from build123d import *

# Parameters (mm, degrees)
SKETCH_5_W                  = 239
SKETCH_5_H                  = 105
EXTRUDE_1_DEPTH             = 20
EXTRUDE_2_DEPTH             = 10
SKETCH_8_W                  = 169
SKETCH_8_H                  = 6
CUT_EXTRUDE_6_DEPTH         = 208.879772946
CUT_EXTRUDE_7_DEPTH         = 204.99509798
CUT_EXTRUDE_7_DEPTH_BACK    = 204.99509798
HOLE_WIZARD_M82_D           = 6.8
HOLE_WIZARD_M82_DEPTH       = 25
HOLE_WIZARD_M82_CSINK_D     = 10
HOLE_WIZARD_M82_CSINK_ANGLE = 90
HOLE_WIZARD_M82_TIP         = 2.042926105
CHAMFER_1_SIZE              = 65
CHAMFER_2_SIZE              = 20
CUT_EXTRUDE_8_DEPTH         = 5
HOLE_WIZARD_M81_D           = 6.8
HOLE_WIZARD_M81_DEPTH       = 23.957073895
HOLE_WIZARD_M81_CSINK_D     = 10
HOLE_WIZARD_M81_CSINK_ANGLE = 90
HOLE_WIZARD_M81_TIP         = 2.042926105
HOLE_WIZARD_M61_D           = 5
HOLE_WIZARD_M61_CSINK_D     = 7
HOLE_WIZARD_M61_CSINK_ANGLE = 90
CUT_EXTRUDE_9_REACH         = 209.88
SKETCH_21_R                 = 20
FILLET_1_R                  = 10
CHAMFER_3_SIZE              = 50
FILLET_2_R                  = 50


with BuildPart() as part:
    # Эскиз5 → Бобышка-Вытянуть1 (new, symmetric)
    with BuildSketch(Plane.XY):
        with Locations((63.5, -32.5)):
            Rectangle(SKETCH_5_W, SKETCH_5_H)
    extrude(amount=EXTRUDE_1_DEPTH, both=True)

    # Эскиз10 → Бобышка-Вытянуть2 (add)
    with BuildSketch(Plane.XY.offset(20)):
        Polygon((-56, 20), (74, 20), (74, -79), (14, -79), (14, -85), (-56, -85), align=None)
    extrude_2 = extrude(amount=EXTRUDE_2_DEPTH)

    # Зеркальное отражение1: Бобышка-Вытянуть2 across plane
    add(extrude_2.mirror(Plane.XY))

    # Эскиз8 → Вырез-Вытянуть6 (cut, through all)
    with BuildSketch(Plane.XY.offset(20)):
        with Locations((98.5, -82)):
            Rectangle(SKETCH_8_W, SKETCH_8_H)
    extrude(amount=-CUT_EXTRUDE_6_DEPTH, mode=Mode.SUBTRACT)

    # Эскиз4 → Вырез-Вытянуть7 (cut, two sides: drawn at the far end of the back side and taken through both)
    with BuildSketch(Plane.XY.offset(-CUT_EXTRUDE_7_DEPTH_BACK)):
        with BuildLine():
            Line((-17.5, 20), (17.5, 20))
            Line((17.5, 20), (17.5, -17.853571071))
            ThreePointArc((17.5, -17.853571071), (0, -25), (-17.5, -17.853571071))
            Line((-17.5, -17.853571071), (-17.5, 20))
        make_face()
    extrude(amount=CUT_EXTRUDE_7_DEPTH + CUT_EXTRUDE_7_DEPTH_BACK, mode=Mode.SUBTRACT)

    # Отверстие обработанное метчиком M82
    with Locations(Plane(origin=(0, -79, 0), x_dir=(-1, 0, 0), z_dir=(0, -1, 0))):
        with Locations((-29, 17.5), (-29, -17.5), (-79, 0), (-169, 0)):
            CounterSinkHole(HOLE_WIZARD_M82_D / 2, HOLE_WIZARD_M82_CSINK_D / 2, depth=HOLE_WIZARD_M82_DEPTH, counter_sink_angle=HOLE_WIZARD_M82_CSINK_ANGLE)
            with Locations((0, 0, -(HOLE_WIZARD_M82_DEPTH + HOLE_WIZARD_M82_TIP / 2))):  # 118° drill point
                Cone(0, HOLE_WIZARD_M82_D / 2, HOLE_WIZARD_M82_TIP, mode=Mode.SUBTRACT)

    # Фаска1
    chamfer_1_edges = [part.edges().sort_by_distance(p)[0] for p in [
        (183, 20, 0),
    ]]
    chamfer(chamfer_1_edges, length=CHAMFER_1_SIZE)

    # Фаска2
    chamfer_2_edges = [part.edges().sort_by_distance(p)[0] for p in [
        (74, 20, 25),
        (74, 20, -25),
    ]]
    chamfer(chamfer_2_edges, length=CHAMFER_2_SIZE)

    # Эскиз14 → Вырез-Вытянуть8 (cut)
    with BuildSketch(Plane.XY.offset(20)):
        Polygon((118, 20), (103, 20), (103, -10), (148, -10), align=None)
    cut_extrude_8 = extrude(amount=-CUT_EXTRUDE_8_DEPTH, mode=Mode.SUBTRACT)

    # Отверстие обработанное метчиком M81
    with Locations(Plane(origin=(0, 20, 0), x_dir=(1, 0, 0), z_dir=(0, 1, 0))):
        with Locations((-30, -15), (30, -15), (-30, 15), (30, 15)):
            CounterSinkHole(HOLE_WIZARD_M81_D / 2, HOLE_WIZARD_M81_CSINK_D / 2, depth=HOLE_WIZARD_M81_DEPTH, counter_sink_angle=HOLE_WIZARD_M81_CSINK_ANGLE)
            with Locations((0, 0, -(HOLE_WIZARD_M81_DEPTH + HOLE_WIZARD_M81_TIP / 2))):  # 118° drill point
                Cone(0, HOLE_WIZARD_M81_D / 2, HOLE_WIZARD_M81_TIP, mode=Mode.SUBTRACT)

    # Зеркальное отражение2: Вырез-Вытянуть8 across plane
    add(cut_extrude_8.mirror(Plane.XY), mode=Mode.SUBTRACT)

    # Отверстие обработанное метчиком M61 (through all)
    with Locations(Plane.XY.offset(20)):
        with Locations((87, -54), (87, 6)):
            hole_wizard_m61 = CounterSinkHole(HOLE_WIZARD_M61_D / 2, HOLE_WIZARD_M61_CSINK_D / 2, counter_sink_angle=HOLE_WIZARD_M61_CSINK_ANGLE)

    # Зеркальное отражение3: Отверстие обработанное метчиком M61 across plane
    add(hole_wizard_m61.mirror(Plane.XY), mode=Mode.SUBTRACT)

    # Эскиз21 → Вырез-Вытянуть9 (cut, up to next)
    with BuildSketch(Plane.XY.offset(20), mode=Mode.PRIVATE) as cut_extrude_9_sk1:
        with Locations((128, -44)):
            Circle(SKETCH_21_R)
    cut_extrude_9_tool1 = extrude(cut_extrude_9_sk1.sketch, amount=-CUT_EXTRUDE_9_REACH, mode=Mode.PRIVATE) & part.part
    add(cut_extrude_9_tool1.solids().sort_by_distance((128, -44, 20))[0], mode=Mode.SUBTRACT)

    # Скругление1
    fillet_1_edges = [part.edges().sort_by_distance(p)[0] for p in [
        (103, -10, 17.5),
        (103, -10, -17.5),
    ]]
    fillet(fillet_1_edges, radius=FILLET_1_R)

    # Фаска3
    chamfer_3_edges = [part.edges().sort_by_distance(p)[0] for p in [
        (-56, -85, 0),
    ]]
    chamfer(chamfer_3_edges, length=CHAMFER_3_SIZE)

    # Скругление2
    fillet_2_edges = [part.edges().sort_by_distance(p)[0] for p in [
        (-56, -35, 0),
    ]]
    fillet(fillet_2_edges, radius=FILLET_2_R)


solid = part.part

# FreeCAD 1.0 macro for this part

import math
import FreeCAD as App
import Part
import Sketcher
Q = App.Units.Quantity


def edges_at(feature, points):
    """Names of the edges that pass closest to the given points."""
    edges = feature.Shape.Edges
    near = lambda p: min(range(len(edges)), key=lambda i: edges[i].distToShape(Part.Vertex(*p))[0])
    return sorted({f"Edge{near(p) + 1}" for p in points})


def add_polygon(sketch, points):
    """Adds a closed chain of lines whose ends are joined by coincident constraints."""
    first, n = sketch.GeometryCount, len(points)
    for a, b in zip(points, points[1:] + points[:1]):
        sketch.addGeometry(Part.LineSegment(App.Vector(*a, 0), App.Vector(*b, 0)), False)
    for i in range(n):
        sketch.addConstraint(Sketcher.Constraint("Coincident", first + i, 2, first + (i + 1) % n, 1))

doc = App.newDocument("Part")
params = doc.addObject("Spreadsheet::Sheet", "Params")
for row, (alias, value) in enumerate([
    ("sketch1_width", "239 mm"),
    ("sketch1_height", "105 mm"),
    ("pad1_length", "40 mm"),
    ("sketch2_width", "130 mm"),
    ("sketch2_width2", "70 mm"),
    ("sketch2_height", "105 mm"),
    ("sketch2_height2", "6 mm"),
    ("pad2_length", "10 mm"),
    ("sketch3_width", "169 mm"),
    ("sketch3_height", "6 mm"),
    ("sketch4_radius", "25 mm"),
    ("sketch4_width", "35 mm"),
    ("sketch5_diameter", "6.8 mm"),
    ("hole_diameter", "6.8 mm"),
    ("hole_depth", "25 mm"),
    ("hole_csink_diameter", "10 mm"),
    ("chamfer_size", "65 mm"),
    ("chamfer2_size", "20 mm"),
    ("sketch6_width", "15 mm"),
    ("sketch6_width2", "45 mm"),
    ("sketch6_height", "30 mm"),
    ("pocket3_length", "5 mm"),
    ("sketch7_diameter", "6.8 mm"),
    ("hole2_diameter", "6.8 mm"),
    ("hole2_depth", "23.957074 mm"),
    ("hole2_csink_diameter", "10 mm"),
    ("sketch8_diameter", "5 mm"),
    ("hole3_diameter", "5 mm"),
    ("hole3_csink_diameter", "7 mm"),
    ("sketch9_diameter", "40 mm"),
    ("fillet_radius", "10 mm"),
    ("chamfer3_size", "50 mm"),
    ("fillet2_radius", "50 mm"),
], start=1):
    params.set(f"A{row}", alias)
    params.set(f"B{row}", "=" + value)
    params.setAlias(f"B{row}", alias)

body = doc.addObject("PartDesign::Body", "Body")

sketch1 = body.newObject("Sketcher::SketchObject", "Sketch")
sketch1.AttachmentSupport = (doc.getObject("XY_Plane"), [""])
sketch1.MapMode = "FlatFace"
add_polygon(sketch1, [(-56, 20), (-56, -85), (183, -85), (183, 20)])
sketch1.addConstraint(Sketcher.Constraint("Vertical", 0))
sketch1.addConstraint(Sketcher.Constraint("Horizontal", 1))
sketch1.addConstraint(Sketcher.Constraint("Vertical", 2))
sketch1.addConstraint(Sketcher.Constraint("Horizontal", 3))
sketch1.addConstraint(Sketcher.Constraint("DistanceX", 1, 1, 1, 2, Q("239 mm")))
sketch1.addConstraint(Sketcher.Constraint("DistanceY", 0, 2, 0, 1, Q("105 mm")))
sketch1.addConstraint(Sketcher.Constraint("DistanceX", 0, 2, -1, 1, Q("56 mm")))
sketch1.addConstraint(Sketcher.Constraint("DistanceY", 0, 2, -1, 1, Q("85 mm")))
sketch1.setExpression("Constraints[8]", "Params.sketch1_width")
sketch1.setExpression("Constraints[9]", "Params.sketch1_height")
pad1 = body.newObject("PartDesign::Pad", "Pad")
pad1.Profile = sketch1
pad1.setExpression("Length", "Params.pad1_length")
pad1.Midplane = True

sketch2 = body.newObject("Sketcher::SketchObject", "Sketch001")
sketch2.AttachmentSupport = (doc.getObject("XY_Plane"), [""])
sketch2.MapMode = "FlatFace"
sketch2.AttachmentOffset = App.Placement(App.Vector(0, 0, 20), App.Rotation())
add_polygon(sketch2, [(74, 20), (-56, 20), (-56, -85), (14, -85), (14, -79), (74, -79)])
sketch2.addConstraint(Sketcher.Constraint("Horizontal", 0))
sketch2.addConstraint(Sketcher.Constraint("Vertical", 1))
sketch2.addConstraint(Sketcher.Constraint("Horizontal", 2))
sketch2.addConstraint(Sketcher.Constraint("Vertical", 3))
sketch2.addConstraint(Sketcher.Constraint("Horizontal", 4))
sketch2.addConstraint(Sketcher.Constraint("Vertical", 5))
sketch2.addConstraint(Sketcher.Constraint("DistanceX", 0, 2, 0, 1, Q("130 mm")))
sketch2.addConstraint(Sketcher.Constraint("DistanceX", 2, 1, 2, 2, Q("70 mm")))
sketch2.addConstraint(Sketcher.Constraint("DistanceY", 1, 2, 1, 1, Q("105 mm")))
sketch2.addConstraint(Sketcher.Constraint("DistanceY", 3, 1, 3, 2, Q("6 mm")))
sketch2.addConstraint(Sketcher.Constraint("DistanceX", 0, 2, -1, 1, Q("56 mm")))
sketch2.addConstraint(Sketcher.Constraint("DistanceY", -1, 1, 0, 2, Q("20 mm")))
sketch2.setExpression("Constraints[12]", "Params.sketch2_width")
sketch2.setExpression("Constraints[13]", "Params.sketch2_width2")
sketch2.setExpression("Constraints[14]", "Params.sketch2_height")
sketch2.setExpression("Constraints[15]", "Params.sketch2_height2")
pad2 = body.newObject("PartDesign::Pad", "Pad001")
pad2.Profile = sketch2
pad2.setExpression("Length", "Params.pad2_length")
doc.recompute()

mirrored = body.newObject("PartDesign::Mirrored", "Mirrored")
mirrored.Originals = [pad2]
mirrored.MirrorPlane = (doc.getObject("XY_Plane"), [""])
body.Tip = mirrored

sketch3 = body.newObject("Sketcher::SketchObject", "Sketch002")
sketch3.AttachmentSupport = (doc.getObject("XY_Plane"), [""])
sketch3.MapMode = "FlatFace"
sketch3.AttachmentOffset = App.Placement(App.Vector(0, 0, 20), App.Rotation())
add_polygon(sketch3, [(14, -79), (14, -85), (183, -85), (183, -79)])
sketch3.addConstraint(Sketcher.Constraint("Vertical", 0))
sketch3.addConstraint(Sketcher.Constraint("Horizontal", 1))
sketch3.addConstraint(Sketcher.Constraint("Vertical", 2))
sketch3.addConstraint(Sketcher.Constraint("Horizontal", 3))
sketch3.addConstraint(Sketcher.Constraint("DistanceX", 1, 1, 1, 2, Q("169 mm")))
sketch3.addConstraint(Sketcher.Constraint("DistanceY", 0, 2, 0, 1, Q("6 mm")))
sketch3.addConstraint(Sketcher.Constraint("DistanceX", -1, 1, 0, 2, Q("14 mm")))
sketch3.addConstraint(Sketcher.Constraint("DistanceY", 0, 2, -1, 1, Q("85 mm")))
sketch3.setExpression("Constraints[8]", "Params.sketch3_width")
sketch3.setExpression("Constraints[9]", "Params.sketch3_height")
pocket1 = body.newObject("PartDesign::Pocket", "Pocket")
pocket1.Profile = sketch3
pocket1.Type = "ThroughAll"

sketch4 = body.newObject("Sketcher::SketchObject", "Sketch003")
sketch4.AttachmentSupport = (doc.getObject("XY_Plane"), [""])
sketch4.MapMode = "FlatFace"
sketch4.addGeometry(Part.LineSegment(App.Vector(18, 20, 0), App.Vector(-18, 20, 0)), False)
sketch4.addGeometry(Part.LineSegment(App.Vector(-18, 20, 0), App.Vector(-18, -18, 0)), False)
sketch4.addGeometry(Part.ArcOfCircle(Part.Circle(App.Vector(0, 0, 0), App.Vector(0, 0, 1), 25), math.radians(-134), math.radians(-46)), False)
sketch4.addGeometry(Part.LineSegment(App.Vector(18, -18, 0), App.Vector(18, 20, 0)), False)
sketch4.addConstraint(Sketcher.Constraint("Coincident", 0, 2, 1, 1))
sketch4.addConstraint(Sketcher.Constraint("Coincident", 1, 2, 2, 1))
sketch4.addConstraint(Sketcher.Constraint("Coincident", 2, 2, 3, 1))
sketch4.addConstraint(Sketcher.Constraint("Coincident", 3, 2, 0, 1))
sketch4.addConstraint(Sketcher.Constraint("Horizontal", 0))
sketch4.addConstraint(Sketcher.Constraint("Vertical", 1))
sketch4.addConstraint(Sketcher.Constraint("Vertical", 3))
sketch4.addConstraint(Sketcher.Constraint("Coincident", 2, 3, -1, 1))
sketch4.addConstraint(Sketcher.Constraint("Horizontal", 1, 2, 2, 2))
sketch4.addConstraint(Sketcher.Constraint("Radius", 2, Q("25 mm")))
sketch4.addConstraint(Sketcher.Constraint("DistanceX", 0, 2, 0, 1, Q("35 mm")))
sketch4.addConstraint(Sketcher.Constraint("DistanceY", -1, 1, 0, 2, Q("20 mm")))
sketch4.setExpression("Constraints[9]", "Params.sketch4_radius")
sketch4.setExpression("Constraints[10]", "Params.sketch4_width")
pocket2 = body.newObject("PartDesign::Pocket", "Pocket001")
pocket2.Profile = sketch4
pocket2.Type = "ThroughAll"
pocket2.Midplane = True

sketch5 = body.newObject("Sketcher::SketchObject", "Sketch004")
sketch5.AttachmentSupport = (doc.getObject("XZ_Plane"), [""])
sketch5.MapMode = "FlatFace"
sketch5.AttachmentOffset = App.Placement(App.Vector(0, 0, 79), App.Rotation())
sketch5.addGeometry(Part.Circle(App.Vector(29, -17.5, 0), App.Vector(0, 0, 1), 3.4), False)
sketch5.addGeometry(Part.Circle(App.Vector(29, 17.5, 0), App.Vector(0, 0, 1), 3.4), False)
sketch5.addGeometry(Part.Circle(App.Vector(79, 0, 0), App.Vector(0, 0, 1), 3.4), False)
sketch5.addGeometry(Part.Circle(App.Vector(169, 0, 0), App.Vector(0, 0, 1), 3.4), False)
sketch5.addConstraint(Sketcher.Constraint("Equal", 0, 1))
sketch5.addConstraint(Sketcher.Constraint("Equal", 1, 2))
sketch5.addConstraint(Sketcher.Constraint("Equal", 2, 3))
sketch5.addConstraint(Sketcher.Constraint("Symmetric", 0, 3, 1, 3, -1))
sketch5.addConstraint(Sketcher.Constraint("PointOnObject", 2, 3, -1))
sketch5.addConstraint(Sketcher.Constraint("PointOnObject", 3, 3, -1))
sketch5.addConstraint(Sketcher.Constraint("Diameter", 0, Q("6.8 mm")))
sketch5.addConstraint(Sketcher.Constraint("DistanceX", -1, 1, 0, 3, Q("29 mm")))
sketch5.addConstraint(Sketcher.Constraint("DistanceX", -1, 1, 2, 3, Q("79 mm")))
sketch5.addConstraint(Sketcher.Constraint("DistanceX", -1, 1, 3, 3, Q("169 mm")))
sketch5.addConstraint(Sketcher.Constraint("DistanceY", 0, 3, 1, 3, Q("35 mm")))
sketch5.setExpression("Constraints[6]", "Params.sketch5_diameter")
doc.recompute()
hole = body.newObject("PartDesign::Hole", "Hole")
hole.Profile = sketch5
hole.ThreadType = "None"
hole.setExpression("Diameter", "Params.hole_diameter")
hole.DepthType = "Dimension"
hole.setExpression("Depth", "Params.hole_depth")
hole.DrillPoint = "Angled"
hole.DrillPointAngle = 118
hole.HoleCutType = "Countersink"
hole.setExpression("HoleCutDiameter", "Params.hole_csink_diameter")
hole.HoleCutCountersinkAngle = 90
doc.recompute()

chamfer = body.newObject("PartDesign::Chamfer", "Chamfer")
chamfer.Base = (hole, edges_at(hole, [(183, 20, 0)]))
chamfer.setExpression("Size", "Params.chamfer_size")
doc.recompute()

chamfer2 = body.newObject("PartDesign::Chamfer", "Chamfer001")
chamfer2.Base = (chamfer, edges_at(chamfer, [(74, 20, 25), (74, 20, -25)]))
chamfer2.setExpression("Size", "Params.chamfer2_size")

sketch6 = body.newObject("Sketcher::SketchObject", "Sketch005")
sketch6.AttachmentSupport = (doc.getObject("XY_Plane"), [""])
sketch6.MapMode = "FlatFace"
sketch6.AttachmentOffset = App.Placement(App.Vector(0, 0, 20), App.Rotation())
add_polygon(sketch6, [(118, 20), (103, 20), (103, -10), (148, -10)])
sketch6.addConstraint(Sketcher.Constraint("Horizontal", 0))
sketch6.addConstraint(Sketcher.Constraint("Vertical", 1))
sketch6.addConstraint(Sketcher.Constraint("Horizontal", 2))
sketch6.addConstraint(Sketcher.Constraint("DistanceX", 0, 2, 0, 1, Q("15 mm")))
sketch6.addConstraint(Sketcher.Constraint("DistanceX", 2, 1, 2, 2, Q("45 mm")))
sketch6.addConstraint(Sketcher.Constraint("DistanceY", 1, 2, 1, 1, Q("30 mm")))
sketch6.addConstraint(Sketcher.Constraint("DistanceX", -1, 1, 0, 2, Q("103 mm")))
sketch6.addConstraint(Sketcher.Constraint("DistanceY", -1, 1, 0, 2, Q("20 mm")))
sketch6.setExpression("Constraints[7]", "Params.sketch6_width")
sketch6.setExpression("Constraints[8]", "Params.sketch6_width2")
sketch6.setExpression("Constraints[9]", "Params.sketch6_height")
pocket3 = body.newObject("PartDesign::Pocket", "Pocket002")
pocket3.Profile = sketch6
pocket3.setExpression("Length", "Params.pocket3_length")

sketch7 = body.newObject("Sketcher::SketchObject", "Sketch006")
sketch7.AttachmentSupport = (doc.getObject("XZ_Plane"), [""])
sketch7.MapMode = "FlatFace"
sketch7.AttachmentOffset = App.Placement(App.Vector(0, 0, -20), App.Rotation())
sketch7.addGeometry(Part.Circle(App.Vector(-30, 15, 0), App.Vector(0, 0, 1), 3.4), False)
sketch7.addGeometry(Part.Circle(App.Vector(30, 15, 0), App.Vector(0, 0, 1), 3.4), False)
sketch7.addGeometry(Part.Circle(App.Vector(-30, -15, 0), App.Vector(0, 0, 1), 3.4), False)
sketch7.addGeometry(Part.Circle(App.Vector(30, -15, 0), App.Vector(0, 0, 1), 3.4), False)
sketch7.addConstraint(Sketcher.Constraint("Equal", 0, 1))
sketch7.addConstraint(Sketcher.Constraint("Equal", 1, 2))
sketch7.addConstraint(Sketcher.Constraint("Equal", 2, 3))
sketch7.addConstraint(Sketcher.Constraint("Symmetric", 1, 3, 2, 3, -1, 1))
sketch7.addConstraint(Sketcher.Constraint("Symmetric", 0, 3, 3, 3, -1, 1))
sketch7.addConstraint(Sketcher.Constraint("Symmetric", 0, 3, 1, 3, -2))
sketch7.addConstraint(Sketcher.Constraint("Diameter", 0, Q("6.8 mm")))
sketch7.addConstraint(Sketcher.Constraint("DistanceX", 0, 3, -1, 1, Q("30 mm")))
sketch7.addConstraint(Sketcher.Constraint("DistanceY", -1, 1, 0, 3, Q("15 mm")))
sketch7.setExpression("Constraints[6]", "Params.sketch7_diameter")
doc.recompute()
hole2 = body.newObject("PartDesign::Hole", "Hole001")
hole2.Profile = sketch7
hole2.ThreadType = "None"
hole2.setExpression("Diameter", "Params.hole2_diameter")
hole2.DepthType = "Dimension"
hole2.setExpression("Depth", "Params.hole2_depth")
hole2.DrillPoint = "Angled"
hole2.DrillPointAngle = 118
hole2.HoleCutType = "Countersink"
hole2.setExpression("HoleCutDiameter", "Params.hole2_csink_diameter")
hole2.HoleCutCountersinkAngle = 90
hole2.Reversed = True
doc.recompute()

mirrored2 = body.newObject("PartDesign::Mirrored", "Mirrored001")
mirrored2.Originals = [pocket3]
mirrored2.MirrorPlane = (doc.getObject("XY_Plane"), [""])
body.Tip = mirrored2

sketch8 = body.newObject("Sketcher::SketchObject", "Sketch007")
sketch8.AttachmentSupport = (doc.getObject("XY_Plane"), [""])
sketch8.MapMode = "FlatFace"
sketch8.AttachmentOffset = App.Placement(App.Vector(0, 0, 20), App.Rotation())
sketch8.addGeometry(Part.Circle(App.Vector(87, -54, 0), App.Vector(0, 0, 1), 2.5), False)
sketch8.addGeometry(Part.Circle(App.Vector(87, 6, 0), App.Vector(0, 0, 1), 2.5), False)
sketch8.addConstraint(Sketcher.Constraint("Equal", 0, 1))
sketch8.addConstraint(Sketcher.Constraint("Vertical", 0, 3, 1, 3))
sketch8.addConstraint(Sketcher.Constraint("Diameter", 0, Q("5 mm")))
sketch8.addConstraint(Sketcher.Constraint("DistanceX", -1, 1, 0, 3, Q("87 mm")))
sketch8.addConstraint(Sketcher.Constraint("DistanceY", 0, 3, -1, 1, Q("54 mm")))
sketch8.addConstraint(Sketcher.Constraint("DistanceY", -1, 1, 1, 3, Q("6 mm")))
sketch8.setExpression("Constraints[2]", "Params.sketch8_diameter")
doc.recompute()
hole3 = body.newObject("PartDesign::Hole", "Hole002")
hole3.Profile = sketch8
hole3.ThreadType = "None"
hole3.setExpression("Diameter", "Params.hole3_diameter")
hole3.DepthType = "ThroughAll"
hole3.HoleCutType = "Countersink"
hole3.setExpression("HoleCutDiameter", "Params.hole3_csink_diameter")
hole3.HoleCutCountersinkAngle = 90
doc.recompute()

mirrored3 = body.newObject("PartDesign::Mirrored", "Mirrored002")
mirrored3.Originals = [hole3]
mirrored3.MirrorPlane = (doc.getObject("XY_Plane"), [""])
body.Tip = mirrored3

sketch9 = body.newObject("Sketcher::SketchObject", "Sketch008")
sketch9.AttachmentSupport = (doc.getObject("XY_Plane"), [""])
sketch9.MapMode = "FlatFace"
sketch9.AttachmentOffset = App.Placement(App.Vector(0, 0, 20), App.Rotation())
sketch9.addGeometry(Part.Circle(App.Vector(128, -44, 0), App.Vector(0, 0, 1), 20), False)
sketch9.addConstraint(Sketcher.Constraint("Diameter", 0, Q("40 mm")))
sketch9.addConstraint(Sketcher.Constraint("DistanceX", -1, 1, 0, 3, Q("128 mm")))
sketch9.addConstraint(Sketcher.Constraint("DistanceY", 0, 3, -1, 1, Q("44 mm")))
sketch9.setExpression("Constraints[0]", "Params.sketch9_diameter")
pocket4 = body.newObject("PartDesign::Pocket", "Pocket003")
pocket4.Profile = sketch9
pocket4.Type = "UpToFirst"
doc.recompute()

fillet = body.newObject("PartDesign::Fillet", "Fillet")
fillet.Base = (pocket4, edges_at(pocket4, [(103, -10, 17.5), (103, -10, -17.5)]))
fillet.setExpression("Radius", "Params.fillet_radius")
doc.recompute()

chamfer3 = body.newObject("PartDesign::Chamfer", "Chamfer002")
chamfer3.Base = (fillet, edges_at(fillet, [(-56, -85, 0)]))
chamfer3.setExpression("Size", "Params.chamfer3_size")
doc.recompute()

fillet2 = body.newObject("PartDesign::Fillet", "Fillet001")
fillet2.Base = (chamfer3, edges_at(chamfer3, [(-56, -35, 0)]))
fillet2.setExpression("Radius", "Params.fillet2_radius")

doc.recompute()
